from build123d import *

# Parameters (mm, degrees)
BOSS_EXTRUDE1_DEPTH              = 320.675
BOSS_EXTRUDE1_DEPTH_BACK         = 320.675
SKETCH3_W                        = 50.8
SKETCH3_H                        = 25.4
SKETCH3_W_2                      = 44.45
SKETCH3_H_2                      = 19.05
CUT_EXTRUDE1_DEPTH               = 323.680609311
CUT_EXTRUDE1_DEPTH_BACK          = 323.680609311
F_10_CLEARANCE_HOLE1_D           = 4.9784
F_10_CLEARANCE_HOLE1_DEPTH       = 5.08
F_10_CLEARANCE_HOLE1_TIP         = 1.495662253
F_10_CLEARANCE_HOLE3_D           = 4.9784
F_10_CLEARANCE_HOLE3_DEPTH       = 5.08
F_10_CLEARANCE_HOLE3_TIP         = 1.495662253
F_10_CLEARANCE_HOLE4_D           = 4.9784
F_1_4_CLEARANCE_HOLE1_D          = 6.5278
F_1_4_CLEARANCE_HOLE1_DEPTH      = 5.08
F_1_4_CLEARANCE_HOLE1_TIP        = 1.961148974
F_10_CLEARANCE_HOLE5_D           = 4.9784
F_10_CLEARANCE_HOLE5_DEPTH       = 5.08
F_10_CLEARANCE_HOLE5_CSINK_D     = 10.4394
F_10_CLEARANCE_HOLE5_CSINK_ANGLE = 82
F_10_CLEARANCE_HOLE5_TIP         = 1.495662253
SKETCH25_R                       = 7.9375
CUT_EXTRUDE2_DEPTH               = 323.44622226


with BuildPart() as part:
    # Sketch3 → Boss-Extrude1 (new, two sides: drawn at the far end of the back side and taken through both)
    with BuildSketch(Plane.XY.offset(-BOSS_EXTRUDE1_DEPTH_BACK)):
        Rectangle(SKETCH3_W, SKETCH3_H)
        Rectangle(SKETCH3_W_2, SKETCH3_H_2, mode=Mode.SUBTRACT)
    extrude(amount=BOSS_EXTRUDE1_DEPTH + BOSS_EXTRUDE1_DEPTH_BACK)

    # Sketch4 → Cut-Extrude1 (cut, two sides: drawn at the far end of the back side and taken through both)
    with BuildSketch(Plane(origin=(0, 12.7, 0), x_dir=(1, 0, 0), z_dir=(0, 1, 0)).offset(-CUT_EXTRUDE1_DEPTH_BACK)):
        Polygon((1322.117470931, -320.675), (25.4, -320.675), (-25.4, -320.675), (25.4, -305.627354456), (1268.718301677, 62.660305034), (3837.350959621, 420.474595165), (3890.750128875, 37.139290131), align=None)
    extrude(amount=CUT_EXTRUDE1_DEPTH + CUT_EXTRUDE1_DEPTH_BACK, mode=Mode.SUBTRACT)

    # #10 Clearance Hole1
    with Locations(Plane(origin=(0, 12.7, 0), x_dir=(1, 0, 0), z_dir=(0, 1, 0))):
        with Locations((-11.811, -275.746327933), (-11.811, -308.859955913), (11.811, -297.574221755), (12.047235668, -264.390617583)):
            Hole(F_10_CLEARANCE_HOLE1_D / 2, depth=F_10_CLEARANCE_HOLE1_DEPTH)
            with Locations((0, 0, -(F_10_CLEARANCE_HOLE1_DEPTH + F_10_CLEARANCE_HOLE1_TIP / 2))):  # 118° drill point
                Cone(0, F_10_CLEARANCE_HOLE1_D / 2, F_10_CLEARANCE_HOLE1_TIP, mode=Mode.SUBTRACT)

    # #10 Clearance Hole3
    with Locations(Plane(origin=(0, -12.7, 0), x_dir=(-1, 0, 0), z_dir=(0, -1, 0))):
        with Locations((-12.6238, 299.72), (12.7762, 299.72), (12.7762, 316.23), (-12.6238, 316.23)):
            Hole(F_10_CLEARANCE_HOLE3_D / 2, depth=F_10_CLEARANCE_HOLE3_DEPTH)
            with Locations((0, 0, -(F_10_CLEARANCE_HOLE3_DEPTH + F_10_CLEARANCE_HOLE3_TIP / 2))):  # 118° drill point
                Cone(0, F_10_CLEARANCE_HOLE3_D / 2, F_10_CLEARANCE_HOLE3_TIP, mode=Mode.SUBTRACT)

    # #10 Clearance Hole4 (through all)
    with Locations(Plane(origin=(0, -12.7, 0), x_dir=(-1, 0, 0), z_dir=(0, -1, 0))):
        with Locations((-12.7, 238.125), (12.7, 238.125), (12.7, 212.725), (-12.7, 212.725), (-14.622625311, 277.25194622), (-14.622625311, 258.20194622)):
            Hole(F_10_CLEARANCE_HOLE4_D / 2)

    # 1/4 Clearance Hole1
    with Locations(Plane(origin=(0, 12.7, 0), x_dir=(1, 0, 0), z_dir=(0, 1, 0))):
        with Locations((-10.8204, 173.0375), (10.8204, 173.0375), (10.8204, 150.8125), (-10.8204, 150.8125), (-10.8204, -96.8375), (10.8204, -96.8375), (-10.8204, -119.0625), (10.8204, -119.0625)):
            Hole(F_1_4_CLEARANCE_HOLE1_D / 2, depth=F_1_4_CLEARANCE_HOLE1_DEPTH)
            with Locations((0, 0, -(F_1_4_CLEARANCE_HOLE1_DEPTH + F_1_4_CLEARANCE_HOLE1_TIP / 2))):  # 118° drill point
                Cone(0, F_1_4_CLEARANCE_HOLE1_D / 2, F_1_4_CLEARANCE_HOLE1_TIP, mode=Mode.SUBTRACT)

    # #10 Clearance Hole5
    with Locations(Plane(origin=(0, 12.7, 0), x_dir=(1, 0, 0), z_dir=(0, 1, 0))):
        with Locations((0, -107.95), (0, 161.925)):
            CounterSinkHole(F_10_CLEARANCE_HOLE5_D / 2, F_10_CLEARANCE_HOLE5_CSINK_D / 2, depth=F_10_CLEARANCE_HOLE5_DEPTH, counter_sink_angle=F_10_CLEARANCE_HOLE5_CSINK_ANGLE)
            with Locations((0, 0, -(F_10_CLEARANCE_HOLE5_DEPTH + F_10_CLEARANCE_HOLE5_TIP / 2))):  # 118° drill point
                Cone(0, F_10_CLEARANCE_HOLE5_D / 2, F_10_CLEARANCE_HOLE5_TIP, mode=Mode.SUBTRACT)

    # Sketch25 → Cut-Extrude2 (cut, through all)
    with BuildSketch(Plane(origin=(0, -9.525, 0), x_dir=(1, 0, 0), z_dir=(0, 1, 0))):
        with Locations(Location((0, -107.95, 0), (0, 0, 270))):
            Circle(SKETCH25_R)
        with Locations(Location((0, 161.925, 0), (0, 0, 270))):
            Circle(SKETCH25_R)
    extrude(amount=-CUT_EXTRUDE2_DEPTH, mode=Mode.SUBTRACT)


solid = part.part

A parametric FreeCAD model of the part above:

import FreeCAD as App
import Part
import Sketcher
Q = App.Units.Quantity


def add_polygon(sketch, points):
    """Adds a closed chain of lines whose ends are joined by coincident constraints."""
    first, n = sketch.GeometryCount, len(points)
    for a, b in zip(points, points[1:] + points[:1]):
        sketch.addGeometry(Part.LineSegment(App.Vector(*a, 0), App.Vector(*b, 0)), False)
    for i in range(n):
        sketch.addConstraint(Sketcher.Constraint("Coincident", first + i, 2, first + (i + 1) % n, 1))

doc = App.newDocument("Part")
body = doc.addObject("PartDesign::Body", "Body")

# Sketch on XY plane
sketch1 = body.newObject("Sketcher::SketchObject", "Sketch")
sketch1.AttachmentSupport = (doc.getObject("XY_Plane"), [""])
sketch1.MapMode = "FlatFace"
add_polygon(sketch1, [(-25.4, 12.7), (-25.4, -12.7), (25.4, -12.7), (25.4, 12.7)])  # lines 0-3
add_polygon(sketch1, [(22.225, -9.525), (-22.225, -9.525), (-22.225, 9.525), (22.225, 9.525)])  # lines 4-7
sketch1.addConstraint([
    Sketcher.Constraint("Vertical", 0),
    Sketcher.Constraint("Horizontal", 1),
    Sketcher.Constraint("Vertical", 2),
    Sketcher.Constraint("Horizontal", 3),
    Sketcher.Constraint("Horizontal", 4),
    Sketcher.Constraint("Vertical", 5),
    Sketcher.Constraint("Horizontal", 6),
    Sketcher.Constraint("Vertical", 7),
    Sketcher.Constraint("Symmetric", 0, 2, 2, 2, -1, 1),
    Sketcher.Constraint("Symmetric", 4, 2, 6, 2, -1, 1),
    Sketcher.Constraint("DistanceX", 1, 1, 1, 2, Q("2 in")),
    Sketcher.Constraint("DistanceY", 0, 2, 0, 1, Q("1 in")),
    Sketcher.Constraint("DistanceX", 4, 2, 4, 1, Q("1.75 in")),
    Sketcher.Constraint("DistanceY", 5, 1, 5, 2, Q("0.75 in")),
])
pad1 = body.newObject("PartDesign::Pad", "Pad")
pad1.Profile = sketch1
pad1.Type = "TwoLengths"
pad1.Length = Q("12.625 in")
pad1.Length2 = Q("12.625 in")

# Sketch on XZ plane
sketch2 = body.newObject("Sketcher::SketchObject", "Sketch001")
sketch2.AttachmentSupport = (doc.getObject("XZ_Plane"), [""])
sketch2.MapMode = "FlatFace"
sketch2.AttachmentOffset = App.Placement(App.Vector(0, 0, -0.5 * 25.4), App.Rotation())
add_polygon(sketch2, [(-25.4, 320.675), (1322.117471, 320.675), (3890.750129, -37.13929), (3837.35096, -420.474595), (1268.718302, -62.660305), (25.4, 305.627354)])  # lines 0-5
sketch2.addConstraint([
    Sketcher.Constraint("Horizontal", 0),
    Sketcher.Constraint("Perpendicular", 1, 2),
    Sketcher.Constraint("Perpendicular", 2, 3),
    Sketcher.Constraint("Parallel", 4, 5),
    Sketcher.Constraint("Equal", 1, 3),
    Sketcher.Constraint("DistanceX", -1, 1, 4, 2, Q("1 in")),
    Sketcher.Constraint("DistanceX", 5, 2, -1, 1, Q("1 in")),
    Sketcher.Constraint("Angle", 4, Q("163.5 deg")),
    Sketcher.Constraint("DistanceY", -1, 1, 0, 2, Q("12.625 in")),
    Sketcher.Constraint("DistanceX", 0, 1, 0, 2, Q("1347.517471 mm")),
    Sketcher.Constraint("DistanceX", -1, 1, 3, 2, Q("1268.718302 mm")),
    Sketcher.Constraint("Distance", 1, Q("2593.434942 mm")),
])
pocket1 = body.newObject("PartDesign::Pocket", "Pocket")
pocket1.Profile = sketch2
pocket1.Type = "ThroughAll"
pocket1.Midplane = True

# Sketch on XZ plane
sketch3 = body.newObject("Sketcher::SketchObject", "Sketch002")
sketch3.AttachmentSupport = (doc.getObject("XZ_Plane"), [""])
sketch3.MapMode = "FlatFace"
sketch3.AttachmentOffset = App.Placement(App.Vector(0, 0, -0.5 * 25.4), App.Rotation())
sketch3.addGeometry([
    Part.Circle(App.Vector(-11.811, 275.746328, 0), App.Vector(0, 0, 1), 2.4892),
    Part.Circle(App.Vector(-11.811, 308.859956, 0), App.Vector(0, 0, 1), 2.4892),
    Part.Circle(App.Vector(11.811, 297.574222, 0), App.Vector(0, 0, 1), 2.4892),
    Part.Circle(App.Vector(12.047236, 264.390618, 0), App.Vector(0, 0, 1), 2.4892),
], False)
sketch3.addConstraint([
    Sketcher.Constraint("Equal", 0, 1),
    Sketcher.Constraint("Equal", 1, 2),
    Sketcher.Constraint("Equal", 2, 3),
    Sketcher.Constraint("Vertical", 0, 3, 1, 3),
    Sketcher.Constraint("Diameter", 0, Q("0.196 in")),
    Sketcher.Constraint("DistanceX", 1, 3, 2, 3, Q("0.93 in")),
    Sketcher.Constraint("DistanceX", 0, 3, -1, 1, Q("0.465 in")),
    Sketcher.Constraint("DistanceY", -1, 1, 2, 3, Q("297.574222 mm")),
    Sketcher.Constraint("DistanceY", 3, 3, 0, 3, Q("11.35571 mm")),
    Sketcher.Constraint("DistanceY", 3, 3, 1, 3, Q("44.469338 mm")),
    Sketcher.Constraint("DistanceY", -1, 1, 0, 3, Q("275.746328 mm")),
    Sketcher.Constraint("DistanceX", -1, 1, 3, 3, Q("12.047236 mm")),
])
doc.recompute()
hole = body.newObject("PartDesign::Hole", "Hole")
hole.Profile = sketch3
hole.ThreadType = "None"
hole.Diameter = Q("0.196 in")
hole.DepthType = "Dimension"
hole.Depth = Q("0.2 in")
hole.DrillPoint = "Angled"
hole.DrillPointAngle = 118
hole.Reversed = True

# Sketch on XZ plane
sketch4 = body.newObject("Sketcher::SketchObject", "Sketch003")
sketch4.AttachmentSupport = (doc.getObject("XZ_Plane"), [""])
sketch4.MapMode = "FlatFace"
sketch4.AttachmentOffset = App.Placement(App.Vector(0, 0, 0.5 * 25.4), App.Rotation())
sketch4.addGeometry([
    Part.Circle(App.Vector(12.6238, -299.72, 0), App.Vector(0, 0, 1), 2.4892),
    Part.Circle(App.Vector(-12.7762, -299.72, 0), App.Vector(0, 0, 1), 2.4892),
    Part.Circle(App.Vector(-12.7762, -316.23, 0), App.Vector(0, 0, 1), 2.4892),
    Part.Circle(App.Vector(12.6238, -316.23, 0), App.Vector(0, 0, 1), 2.4892),
], False)
sketch4.addConstraint([
    Sketcher.Constraint("Equal", 0, 1),
    Sketcher.Constraint("Equal", 1, 2),
    Sketcher.Constraint("Equal", 2, 3),
    Sketcher.Constraint("Horizontal", 0, 3, 1, 3),
    Sketcher.Constraint("Horizontal", 2, 3, 3, 3),
    Sketcher.Constraint("Vertical", 1, 3, 2, 3),
    Sketcher.Constraint("Vertical", 0, 3, 3, 3),
    Sketcher.Constraint("Diameter", 0, Q("0.196 in")),
    Sketcher.Constraint("DistanceX", 1, 3, 0, 3, Q("1 in")),
    Sketcher.Constraint("DistanceY", 0, 3, -1, 1, Q("11.8 in")),
    Sketcher.Constraint("DistanceY", 2, 3, -1, 1, Q("12.45 in")),
    Sketcher.Constraint("DistanceX", -1, 1, 0, 3, Q("0.497 in")),
])
doc.recompute()
hole2 = body.newObject("PartDesign::Hole", "Hole001")
hole2.Profile = sketch4
hole2.ThreadType = "None"
hole2.Diameter = Q("0.196 in")
hole2.DepthType = "Dimension"
hole2.Depth = Q("0.2 in")
hole2.DrillPoint = "Angled"
hole2.DrillPointAngle = 118

# Sketch on XZ plane
sketch5 = body.newObject("Sketcher::SketchObject", "Sketch004")
sketch5.AttachmentSupport = (doc.getObject("XZ_Plane"), [""])
sketch5.MapMode = "FlatFace"
sketch5.AttachmentOffset = App.Placement(App.Vector(0, 0, 0.5 * 25.4), App.Rotation())
sketch5.addGeometry([
    Part.Circle(App.Vector(12.7, -238.125, 0), App.Vector(0, 0, 1), 2.4892),  # 0
    Part.Circle(App.Vector(-12.7, -238.125, 0), App.Vector(0, 0, 1), 2.4892),  # 1
    Part.Circle(App.Vector(-12.7, -212.725, 0), App.Vector(0, 0, 1), 2.4892),  # 2
    Part.Circle(App.Vector(12.7, -212.725, 0), App.Vector(0, 0, 1), 2.4892),  # 3
    Part.Circle(App.Vector(14.622625, -277.251946, 0), App.Vector(0, 0, 1), 2.4892),  # 4
    Part.Circle(App.Vector(14.622625, -258.201946, 0), App.Vector(0, 0, 1), 2.4892),  # 5
], False)
sketch5.addConstraint([
    Sketcher.Constraint("Equal", 0, 1),
    Sketcher.Constraint("Equal", 1, 2),
    Sketcher.Constraint("Equal", 2, 3),
    Sketcher.Constraint("Equal", 3, 4),
    Sketcher.Constraint("Equal", 4, 5),
    Sketcher.Constraint("Symmetric", 0, 3, 1, 3, -2),
    Sketcher.Constraint("Symmetric", 2, 3, 3, 3, -2),
    Sketcher.Constraint("Vertical", 1, 3, 2, 3),
    Sketcher.Constraint("Vertical", 4, 3, 5, 3),
    Sketcher.Constraint("Diameter", 0, Q("0.196 in")),
    Sketcher.Constraint("DistanceX", 1, 3, 0, 3, Q("1 in")),
    Sketcher.Constraint("DistanceY", 1, 3, 2, 3, Q("1 in")),
    Sketcher.Constraint("DistanceY", 4, 3, 5, 3, Q("0.75 in")),
    Sketcher.Constraint("DistanceY", 0, 3, -1, 1, Q("9.375 in")),
    Sketcher.Constraint("DistanceX", -1, 1, 4, 3, Q("14.622625 mm")),
    Sketcher.Constraint("DistanceY", 4, 3, -1, 1, Q("277.251946 mm")),
])
doc.recompute()
hole3 = body.newObject("PartDesign::Hole", "Hole002")
hole3.Profile = sketch5
hole3.ThreadType = "None"
hole3.Diameter = Q("0.196 in")
hole3.DepthType = "ThroughAll"

# Sketch on XZ plane
sketch6 = body.newObject("Sketcher::SketchObject", "Sketch005")
sketch6.AttachmentSupport = (doc.getObject("XZ_Plane"), [""])
sketch6.MapMode = "FlatFace"
sketch6.AttachmentOffset = App.Placement(App.Vector(0, 0, -0.5 * 25.4), App.Rotation())
sketch6.addGeometry([
    Part.Circle(App.Vector(-10.8204, -173.0375, 0), App.Vector(0, 0, 1), 3.2639),  # 0
    Part.Circle(App.Vector(10.8204, -173.0375, 0), App.Vector(0, 0, 1), 3.2639),  # 1
    Part.Circle(App.Vector(10.8204, -150.8125, 0), App.Vector(0, 0, 1), 3.2639),  # 2
    Part.Circle(App.Vector(-10.8204, -150.8125, 0), App.Vector(0, 0, 1), 3.2639),  # 3
    Part.Circle(App.Vector(-10.8204, 96.8375, 0), App.Vector(0, 0, 1), 3.2639),  # 4
    Part.Circle(App.Vector(10.8204, 96.8375, 0), App.Vector(0, 0, 1), 3.2639),  # 5
    Part.Circle(App.Vector(-10.8204, 119.0625, 0), App.Vector(0, 0, 1), 3.2639),  # 6
    Part.Circle(App.Vector(10.8204, 119.0625, 0), App.Vector(0, 0, 1), 3.2639),  # 7
], False)
sketch6.addConstraint([
    Sketcher.Constraint("Equal", 0, 1),
    Sketcher.Constraint("Equal", 1, 2),
    Sketcher.Constraint("Equal", 2, 3),
    Sketcher.Constraint("Equal", 3, 4),
    Sketcher.Constraint("Equal", 4, 5),
    Sketcher.Constraint("Equal", 5, 6),
    Sketcher.Constraint("Equal", 6, 7),
    Sketcher.Constraint("Symmetric", 0, 3, 1, 3, -2),
    Sketcher.Constraint("Symmetric", 2, 3, 3, 3, -2),
    Sketcher.Constraint("Symmetric", 4, 3, 5, 3, -2),
    Sketcher.Constraint("Symmetric", 6, 3, 7, 3, -2),
    Sketcher.Constraint("Vertical", 1, 3, 2, 3),
    Sketcher.Constraint("Vertical", 3, 3, 4, 3),
    Sketcher.Constraint("Vertical", 4, 3, 6, 3),
    Sketcher.Constraint("Diameter", 0, Q("0.257 in")),
    Sketcher.Constraint("DistanceY", 0, 3, 6, 3, Q("11.5 in")),
    Sketcher.Constraint("DistanceY", 3, 3, 4, 3, Q("9.75 in")),
    Sketcher.Constraint("DistanceX", 0, 3, -1, 1, Q("0.426 in")),
    Sketcher.Constraint("DistanceY", 0, 3, -1, 1, Q("6.8125 in")),
    Sketcher.Constraint("DistanceY", 2, 3, -1, 1, Q("5.9375 in")),
])
doc.recompute()
hole4 = body.newObject("PartDesign::Hole", "Hole003")
hole4.Profile = sketch6
hole4.ThreadType = "None"
hole4.Diameter = Q("0.257 in")
hole4.DepthType = "Dimension"
hole4.Depth = Q("0.2 in")
hole4.DrillPoint = "Angled"
hole4.DrillPointAngle = 118
hole4.Reversed = True

# Sketch on XZ plane
sketch7 = body.newObject("Sketcher::SketchObject", "Sketch006")
sketch7.AttachmentSupport = (doc.getObject("XZ_Plane"), [""])
sketch7.MapMode = "FlatFace"
sketch7.AttachmentOffset = App.Placement(App.Vector(0, 0, -0.5 * 25.4), App.Rotation())
sketch7.addGeometry([
    Part.Circle(App.Vector(0, 107.95, 0), App.Vector(0, 0, 1), 2.4892),
    Part.Circle(App.Vector(0, -161.925, 0), App.Vector(0, 0, 1), 2.4892),
], False)
sketch7.addConstraint([
    Sketcher.Constraint("Equal", 0, 1),
    Sketcher.Constraint("PointOnObject", 0, 3, -2),
    Sketcher.Constraint("PointOnObject", 1, 3, -2),
    Sketcher.Constraint("Diameter", 0, Q("0.196 in")),
    Sketcher.Constraint("DistanceY", -1, 1, 0, 3, Q("4.25 in")),
    Sketcher.Constraint("DistanceY", 1, 3, -1, 1, Q("6.375 in")),
])
doc.recompute()
hole5 = body.newObject("PartDesign::Hole", "Hole004")
hole5.Profile = sketch7
hole5.ThreadType = "None"
hole5.Diameter = Q("0.196 in")
hole5.DepthType = "Dimension"
hole5.Depth = Q("0.2 in")
hole5.DrillPoint = "Angled"
hole5.DrillPointAngle = 118
hole5.HoleCutType = "Countersink"
hole5.HoleCutDiameter = Q("0.411 in")
hole5.HoleCutCountersinkAngle = 82
hole5.Reversed = True

# Sketch on XZ plane
sketch8 = body.newObject("Sketcher::SketchObject", "Sketch007")
sketch8.AttachmentSupport = (doc.getObject("XZ_Plane"), [""])
sketch8.MapMode = "FlatFace"
sketch8.AttachmentOffset = App.Placement(App.Vector(0, 0, 0.375 * 25.4), App.Rotation())
sketch8.addGeometry([
    Part.Circle(App.Vector(0, 107.95, 0), App.Vector(0, 0, 1), 7.9375),
    Part.Circle(App.Vector(0, -161.925, 0), App.Vector(0, 0, 1), 7.9375),
], False)
sketch8.addConstraint([
    Sketcher.Constraint("Equal", 0, 1),
    Sketcher.Constraint("PointOnObject", 0, 3, -2),
    Sketcher.Constraint("PointOnObject", 1, 3, -2),
    Sketcher.Constraint("Diameter", 0, Q("0.625 in")),
    Sketcher.Constraint("DistanceY", -1, 1, 0, 3, Q("4.25 in")),
    Sketcher.Constraint("DistanceY", 1, 3, -1, 1, Q("6.375 in")),
])
pocket2 = body.newObject("PartDesign::Pocket", "Pocket001")
pocket2.Profile = sketch8
pocket2.Type = "ThroughAll"
pocket2.Reversed = True

doc.recompute()
